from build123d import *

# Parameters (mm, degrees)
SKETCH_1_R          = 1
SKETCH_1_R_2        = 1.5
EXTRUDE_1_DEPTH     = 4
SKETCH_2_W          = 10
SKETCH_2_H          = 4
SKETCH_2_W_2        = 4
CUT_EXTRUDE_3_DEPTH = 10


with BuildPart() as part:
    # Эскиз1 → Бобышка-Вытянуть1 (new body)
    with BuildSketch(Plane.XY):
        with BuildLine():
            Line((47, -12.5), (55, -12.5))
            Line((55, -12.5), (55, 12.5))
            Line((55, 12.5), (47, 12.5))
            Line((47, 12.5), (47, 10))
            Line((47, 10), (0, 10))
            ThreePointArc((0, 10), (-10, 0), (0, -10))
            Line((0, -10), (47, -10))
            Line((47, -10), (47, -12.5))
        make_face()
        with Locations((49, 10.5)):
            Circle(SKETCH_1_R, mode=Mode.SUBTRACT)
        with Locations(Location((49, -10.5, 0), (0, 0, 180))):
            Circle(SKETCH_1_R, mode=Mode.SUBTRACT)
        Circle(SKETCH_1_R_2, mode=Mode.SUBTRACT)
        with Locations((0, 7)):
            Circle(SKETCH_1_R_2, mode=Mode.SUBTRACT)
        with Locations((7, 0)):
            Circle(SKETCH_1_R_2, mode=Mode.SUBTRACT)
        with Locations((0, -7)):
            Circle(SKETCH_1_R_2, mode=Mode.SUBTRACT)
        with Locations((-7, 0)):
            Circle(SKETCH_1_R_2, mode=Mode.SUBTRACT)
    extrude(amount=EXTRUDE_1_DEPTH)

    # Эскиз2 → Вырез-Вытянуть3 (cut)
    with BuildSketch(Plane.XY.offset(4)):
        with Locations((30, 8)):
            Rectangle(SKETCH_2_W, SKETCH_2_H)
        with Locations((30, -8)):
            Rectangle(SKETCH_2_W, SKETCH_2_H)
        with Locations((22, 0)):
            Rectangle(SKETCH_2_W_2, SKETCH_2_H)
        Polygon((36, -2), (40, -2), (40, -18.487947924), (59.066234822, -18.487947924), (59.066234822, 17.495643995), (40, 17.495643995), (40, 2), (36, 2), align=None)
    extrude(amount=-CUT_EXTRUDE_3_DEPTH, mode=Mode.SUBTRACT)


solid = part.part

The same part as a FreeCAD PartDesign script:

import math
import FreeCAD as App
import Part
import Sketcher
from FreeCAD import Vector
Q = App.Units.Quantity

doc = App.newDocument("Part")
body = doc.addObject("PartDesign::Body", "Body")

sketch1 = body.newObject("Sketcher::SketchObject", "Sketch")
sketch1.AttachmentSupport = (doc.getObject("XY_Plane"), [""])
sketch1.MapMode = "FlatFace"
sketch1.addGeometry(Part.LineSegment(Vector(47, -12.5, 0), Vector(55, -12.5, 0)), False)
sketch1.addGeometry(Part.LineSegment(Vector(55, -12.5, 0), Vector(55, 12.5, 0)), False)
sketch1.addGeometry(Part.LineSegment(Vector(55, 12.5, 0), Vector(47, 12.5, 0)), False)
sketch1.addGeometry(Part.LineSegment(Vector(47, 12.5, 0), Vector(47, 10, 0)), False)
sketch1.addGeometry(Part.LineSegment(Vector(47, 10, 0), Vector(0, 10, 0)), False)
sketch1.addGeometry(Part.ArcOfCircle(Part.Circle(Vector(0, 0, 0), Vector(0, 0, 1), 10), math.radians(90), math.radians(270)), False)
sketch1.addGeometry(Part.LineSegment(Vector(0, -10, 0), Vector(47, -10, 0)), False)
sketch1.addGeometry(Part.LineSegment(Vector(47, -10, 0), Vector(47, -12.5, 0)), False)
sketch1.addGeometry(Part.Circle(Vector(0, -7, 0), Vector(0, 0, 1), 1.5), False)
sketch1.addGeometry(Part.Circle(Vector(49, -10.5, 0), Vector(0, 0, 1), 1), False)
sketch1.addGeometry(Part.Circle(Vector(-7, 0, 0), Vector(0, 0, 1), 1.5), False)
sketch1.addGeometry(Part.Circle(Vector(0, 0, 0), Vector(0, 0, 1), 1.5), False)
sketch1.addGeometry(Part.Circle(Vector(7, 0, 0), Vector(0, 0, 1), 1.5), False)
sketch1.addGeometry(Part.Circle(Vector(0, 7, 0), Vector(0, 0, 1), 1.5), False)
sketch1.addGeometry(Part.Circle(Vector(49, 10.5, 0), Vector(0, 0, 1), 1), False)
sketch1.addConstraint(Sketcher.Constraint("Coincident", 0, 2, 1, 1))
sketch1.addConstraint(Sketcher.Constraint("Coincident", 1, 2, 2, 1))
sketch1.addConstraint(Sketcher.Constraint("Coincident", 2, 2, 3, 1))
sketch1.addConstraint(Sketcher.Constraint("Coincident", 3, 2, 4, 1))
sketch1.addConstraint(Sketcher.Constraint("Tangent", 4, 2, 5, 1))
sketch1.addConstraint(Sketcher.Constraint("Tangent", 5, 2, 6, 1))
sketch1.addConstraint(Sketcher.Constraint("Coincident", 6, 2, 7, 1))
sketch1.addConstraint(Sketcher.Constraint("Coincident", 7, 2, 0, 1))
sketch1.addConstraint(Sketcher.Constraint("Horizontal", 0))
sketch1.addConstraint(Sketcher.Constraint("Vertical", 1))
sketch1.addConstraint(Sketcher.Constraint("Horizontal", 2))
sketch1.addConstraint(Sketcher.Constraint("Vertical", 3))
sketch1.addConstraint(Sketcher.Constraint("Horizontal", 4))
sketch1.addConstraint(Sketcher.Constraint("Horizontal", 6))
sketch1.addConstraint(Sketcher.Constraint("Vertical", 7))
sketch1.addConstraint(Sketcher.Constraint("Coincident", 5, 3, -1, 1))
sketch1.addConstraint(Sketcher.Constraint("Coincident", 11, 3, -1, 1))
sketch1.addConstraint(Sketcher.Constraint("Equal", 8, 10))
sketch1.addConstraint(Sketcher.Constraint("Equal", 10, 11))
sketch1.addConstraint(Sketcher.Constraint("Equal", 11, 12))
sketch1.addConstraint(Sketcher.Constraint("Equal", 12, 13))
sketch1.addConstraint(Sketcher.Constraint("Equal", 9, 14))
sketch1.addConstraint(Sketcher.Constraint("Symmetric", 10, 3, 12, 3, -1, 1))
sketch1.addConstraint(Sketcher.Constraint("Symmetric", 8, 3, 13, 3, -1, 1))
sketch1.addConstraint(Sketcher.Constraint("Symmetric", 9, 3, 14, 3, -1))
sketch1.addConstraint(Sketcher.Constraint("Symmetric", 2, 2, 7, 2, -1))
sketch1.addConstraint(Sketcher.Constraint("PointOnObject", 8, 3, -2))
sketch1.addConstraint(Sketcher.Constraint("PointOnObject", 10, 3, -1))
sketch1.addConstraint(Sketcher.Constraint("Diameter", 8, Q("3 mm")))
sketch1.addConstraint(Sketcher.Constraint("Diameter", 9, Q("2 mm")))
sketch1.addConstraint(Sketcher.Constraint("Radius", 5, Q("10 mm")))
sketch1.addConstraint(Sketcher.Constraint("DistanceX", 0, 1, 0, 2, Q("8 mm")))
sketch1.addConstraint(Sketcher.Constraint("DistanceX", 4, 2, 4, 1, Q("47 mm")))
sketch1.addConstraint(Sketcher.Constraint("DistanceY", 1, 1, 1, 2, Q("25 mm")))
sketch1.addConstraint(Sketcher.Constraint("DistanceY", 8, 3, -1, 1, Q("7 mm")))
sketch1.addConstraint(Sketcher.Constraint("DistanceX", -1, 1, 9, 3, Q("49 mm")))
sketch1.addConstraint(Sketcher.Constraint("DistanceX", 10, 3, -1, 1, Q("7 mm")))
sketch1.addConstraint(Sketcher.Constraint("DistanceY", 9, 3, 14, 3, Q("21 mm")))
pad1 = body.newObject("PartDesign::Pad", "Pad")
pad1.Profile = sketch1
pad1.Length = 4

sketch2 = body.newObject("Sketcher::SketchObject", "Sketch001")
sketch2.AttachmentSupport = (doc.getObject("XY_Plane"), [""])
sketch2.MapMode = "FlatFace"
sketch2.AttachmentOffset = App.Placement(Vector(0, 0, 4), App.Rotation())
sketch2.addGeometry(Part.LineSegment(Vector(25, 10, 0), Vector(25, 6, 0)), False)
sketch2.addGeometry(Part.LineSegment(Vector(25, 6, 0), Vector(35, 6, 0)), False)
sketch2.addGeometry(Part.LineSegment(Vector(35, 6, 0), Vector(35, 10, 0)), False)
sketch2.addGeometry(Part.LineSegment(Vector(35, 10, 0), Vector(25, 10, 0)), False)
sketch2.addGeometry(Part.LineSegment(Vector(25, -6, 0), Vector(25, -10, 0)), False)
sketch2.addGeometry(Part.LineSegment(Vector(25, -10, 0), Vector(35, -10, 0)), False)
sketch2.addGeometry(Part.LineSegment(Vector(35, -10, 0), Vector(35, -6, 0)), False)
sketch2.addGeometry(Part.LineSegment(Vector(35, -6, 0), Vector(25, -6, 0)), False)
sketch2.addGeometry(Part.LineSegment(Vector(20, 2, 0), Vector(20, -2, 0)), False)
sketch2.addGeometry(Part.LineSegment(Vector(20, -2, 0), Vector(24, -2, 0)), False)
sketch2.addGeometry(Part.LineSegment(Vector(24, -2, 0), Vector(24, 2, 0)), False)
sketch2.addGeometry(Part.LineSegment(Vector(24, 2, 0), Vector(20, 2, 0)), False)
sketch2.addGeometry(Part.LineSegment(Vector(36, -2, 0), Vector(40, -2, 0)), False)
sketch2.addGeometry(Part.LineSegment(Vector(40, -2, 0), Vector(40, -18.487948, 0)), False)
sketch2.addGeometry(Part.LineSegment(Vector(40, -18.487948, 0), Vector(59.066235, -18.487948, 0)), False)
sketch2.addGeometry(Part.LineSegment(Vector(59.066235, -18.487948, 0), Vector(59.066235, 17.495644, 0)), False)
sketch2.addGeometry(Part.LineSegment(Vector(59.066235, 17.495644, 0), Vector(40, 17.495644, 0)), False)
sketch2.addGeometry(Part.LineSegment(Vector(40, 17.495644, 0), Vector(40, 2, 0)), False)
sketch2.addGeometry(Part.LineSegment(Vector(40, 2, 0), Vector(36, 2, 0)), False)
sketch2.addGeometry(Part.LineSegment(Vector(36, 2, 0), Vector(36, -2, 0)), False)
sketch2.addConstraint(Sketcher.Constraint("Coincident", 0, 2, 1, 1))
sketch2.addConstraint(Sketcher.Constraint("Coincident", 1, 2, 2, 1))
sketch2.addConstraint(Sketcher.Constraint("Coincident", 2, 2, 3, 1))
sketch2.addConstraint(Sketcher.Constraint("Coincident", 3, 2, 0, 1))
sketch2.addConstraint(Sketcher.Constraint("Coincident", 4, 2, 5, 1))
sketch2.addConstraint(Sketcher.Constraint("Coincident", 5, 2, 6, 1))
sketch2.addConstraint(Sketcher.Constraint("Coincident", 6, 2, 7, 1))
sketch2.addConstraint(Sketcher.Constraint("Coincident", 7, 2, 4, 1))
sketch2.addConstraint(Sketcher.Constraint("Coincident", 8, 2, 9, 1))
sketch2.addConstraint(Sketcher.Constraint("Coincident", 9, 2, 10, 1))
sketch2.addConstraint(Sketcher.Constraint("Coincident", 10, 2, 11, 1))
sketch2.addConstraint(Sketcher.Constraint("Coincident", 11, 2, 8, 1))
sketch2.addConstraint(Sketcher.Constraint("Coincident", 12, 2, 13, 1))
sketch2.addConstraint(Sketcher.Constraint("Coincident", 13, 2, 14, 1))
sketch2.addConstraint(Sketcher.Constraint("Coincident", 14, 2, 15, 1))
sketch2.addConstraint(Sketcher.Constraint("Coincident", 15, 2, 16, 1))
sketch2.addConstraint(Sketcher.Constraint("Coincident", 16, 2, 17, 1))
sketch2.addConstraint(Sketcher.Constraint("Coincident", 17, 2, 18, 1))
sketch2.addConstraint(Sketcher.Constraint("Coincident", 18, 2, 19, 1))
sketch2.addConstraint(Sketcher.Constraint("Coincident", 19, 2, 12, 1))
sketch2.addConstraint(Sketcher.Constraint("Vertical", 0))
sketch2.addConstraint(Sketcher.Constraint("Horizontal", 1))
sketch2.addConstraint(Sketcher.Constraint("Vertical", 2))
sketch2.addConstraint(Sketcher.Constraint("Horizontal", 3))
sketch2.addConstraint(Sketcher.Constraint("Vertical", 4))
sketch2.addConstraint(Sketcher.Constraint("Horizontal", 5))
sketch2.addConstraint(Sketcher.Constraint("Vertical", 6))
sketch2.addConstraint(Sketcher.Constraint("Horizontal", 7))
sketch2.addConstraint(Sketcher.Constraint("Vertical", 8))
sketch2.addConstraint(Sketcher.Constraint("Horizontal", 9))
sketch2.addConstraint(Sketcher.Constraint("Vertical", 10))
sketch2.addConstraint(Sketcher.Constraint("Horizontal", 11))
sketch2.addConstraint(Sketcher.Constraint("Horizontal", 12))
sketch2.addConstraint(Sketcher.Constraint("Vertical", 13))
sketch2.addConstraint(Sketcher.Constraint("Horizontal", 14))
sketch2.addConstraint(Sketcher.Constraint("Vertical", 15))
sketch2.addConstraint(Sketcher.Constraint("Horizontal", 16))
sketch2.addConstraint(Sketcher.Constraint("Vertical", 17))
sketch2.addConstraint(Sketcher.Constraint("Horizontal", 18))
sketch2.addConstraint(Sketcher.Constraint("Vertical", 19))
sketch2.addConstraint(Sketcher.Constraint("Symmetric", 3, 2, 4, 2, -1))
sketch2.addConstraint(Sketcher.Constraint("Symmetric", 1, 2, 6, 2, -1))
sketch2.addConstraint(Sketcher.Constraint("Symmetric", 12, 2, 17, 2, -1))
sketch2.addConstraint(Sketcher.Constraint("Horizontal", 9, 2, 12, 2))
sketch2.addConstraint(Sketcher.Constraint("Horizontal", 11, 2, 17, 2))
sketch2.addConstraint(Sketcher.Constraint("Equal", 11, 12))
sketch2.addConstraint(Sketcher.Constraint("Equal", 18, 0))
sketch2.addConstraint(Sketcher.Constraint("Equal", 6, 8))
sketch2.addConstraint(Sketcher.Constraint("DistanceX", 1, 1, 1, 2, Q("10 mm")))
sketch2.addConstraint(Sketcher.Constraint("DistanceX", 9, 1, 9, 2, Q("4 mm")))
sketch2.addConstraint(Sketcher.Constraint("DistanceX", -1, 1, 0, 2, Q("25 mm")))
sketch2.addConstraint(Sketcher.Constraint("DistanceY", -1, 1, 0, 2, Q("6 mm")))
sketch2.addConstraint(Sketcher.Constraint("DistanceX", -1, 1, 8, 2, Q("20 mm")))
sketch2.addConstraint(Sketcher.Constraint("DistanceX", -1, 1, 12, 2, Q("40 mm")))
sketch2.addConstraint(Sketcher.Constraint("DistanceY", 15, 1, 15, 2, Q("35.983592 mm")))
sketch2.addConstraint(Sketcher.Constraint("DistanceX", 14, 1, 14, 2, Q("19.066235 mm")))
sketch2.addConstraint(Sketcher.Constraint("DistanceY", 13, 2, 13, 1, Q("16.487948 mm")))
pocket1 = body.newObject("PartDesign::Pocket", "Pocket")
pocket1.Profile = sketch2
pocket1.Length = 10

doc.recompute()
